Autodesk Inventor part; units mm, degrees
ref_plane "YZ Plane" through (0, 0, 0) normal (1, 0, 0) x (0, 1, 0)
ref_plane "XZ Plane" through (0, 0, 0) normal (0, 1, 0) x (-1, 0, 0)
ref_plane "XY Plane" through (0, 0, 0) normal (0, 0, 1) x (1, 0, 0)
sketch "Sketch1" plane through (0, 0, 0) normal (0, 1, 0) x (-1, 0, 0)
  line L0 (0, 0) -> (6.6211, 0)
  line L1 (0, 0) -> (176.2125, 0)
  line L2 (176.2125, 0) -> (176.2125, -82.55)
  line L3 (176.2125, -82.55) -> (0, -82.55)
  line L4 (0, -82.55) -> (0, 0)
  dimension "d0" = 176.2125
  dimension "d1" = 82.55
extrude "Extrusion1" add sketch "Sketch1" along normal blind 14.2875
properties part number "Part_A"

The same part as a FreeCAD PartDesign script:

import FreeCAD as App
import Part
import Sketcher

V = App.Vector
Q = App.Units.Quantity


def add_polygon(sketch, points):
    """Adds a closed chain of lines whose ends are joined by coincident constraints."""
    first, n = sketch.GeometryCount, len(points)
    for a, b in zip(points, points[1:] + points[:1]):
        sketch.addGeometry(Part.LineSegment(App.Vector(*a, 0), App.Vector(*b, 0)), False)
    for i in range(n):
        sketch.addConstraint(Sketcher.Constraint("Coincident", first + i, 2, first + (i + 1) % n, 1))

doc = App.newDocument("Part")
body = doc.addObject("PartDesign::Body", "Body")

# Sketch on XZ plane
sketch1 = doc.addObject("Sketcher::SketchObject", "Sketch")
body.addObject(sketch1)
sketch1.AttachmentSupport = (doc.XZ_Plane, [""])
sketch1.MapMode = "FlatFace"
add_polygon(sketch1, [(-176.2125, 0), (0, 0), (0, -82.55), (-176.2125, -82.55)])  # lines 0-3
sketch1.addConstraint([
    Sketcher.Constraint("Horizontal", 0),
    Sketcher.Constraint("Vertical", 1),
    Sketcher.Constraint("Horizontal", 2),
    Sketcher.Constraint("Vertical", 3),
    Sketcher.Constraint("Coincident", 0, 2, -1, 1),
    Sketcher.Constraint("DistanceY", 1, 2, 1, 1, Q("3.25 in")),
    Sketcher.Constraint("DistanceX", 0, 1, 0, 2, Q("6.9375 in")),
])
pad1 = doc.addObject("PartDesign::Pad", "Pad")
body.addObject(pad1)
pad1.Profile = sketch1
pad1.Length = Q("0.5625 in")
pad1.Reversed = True

doc.recompute()
